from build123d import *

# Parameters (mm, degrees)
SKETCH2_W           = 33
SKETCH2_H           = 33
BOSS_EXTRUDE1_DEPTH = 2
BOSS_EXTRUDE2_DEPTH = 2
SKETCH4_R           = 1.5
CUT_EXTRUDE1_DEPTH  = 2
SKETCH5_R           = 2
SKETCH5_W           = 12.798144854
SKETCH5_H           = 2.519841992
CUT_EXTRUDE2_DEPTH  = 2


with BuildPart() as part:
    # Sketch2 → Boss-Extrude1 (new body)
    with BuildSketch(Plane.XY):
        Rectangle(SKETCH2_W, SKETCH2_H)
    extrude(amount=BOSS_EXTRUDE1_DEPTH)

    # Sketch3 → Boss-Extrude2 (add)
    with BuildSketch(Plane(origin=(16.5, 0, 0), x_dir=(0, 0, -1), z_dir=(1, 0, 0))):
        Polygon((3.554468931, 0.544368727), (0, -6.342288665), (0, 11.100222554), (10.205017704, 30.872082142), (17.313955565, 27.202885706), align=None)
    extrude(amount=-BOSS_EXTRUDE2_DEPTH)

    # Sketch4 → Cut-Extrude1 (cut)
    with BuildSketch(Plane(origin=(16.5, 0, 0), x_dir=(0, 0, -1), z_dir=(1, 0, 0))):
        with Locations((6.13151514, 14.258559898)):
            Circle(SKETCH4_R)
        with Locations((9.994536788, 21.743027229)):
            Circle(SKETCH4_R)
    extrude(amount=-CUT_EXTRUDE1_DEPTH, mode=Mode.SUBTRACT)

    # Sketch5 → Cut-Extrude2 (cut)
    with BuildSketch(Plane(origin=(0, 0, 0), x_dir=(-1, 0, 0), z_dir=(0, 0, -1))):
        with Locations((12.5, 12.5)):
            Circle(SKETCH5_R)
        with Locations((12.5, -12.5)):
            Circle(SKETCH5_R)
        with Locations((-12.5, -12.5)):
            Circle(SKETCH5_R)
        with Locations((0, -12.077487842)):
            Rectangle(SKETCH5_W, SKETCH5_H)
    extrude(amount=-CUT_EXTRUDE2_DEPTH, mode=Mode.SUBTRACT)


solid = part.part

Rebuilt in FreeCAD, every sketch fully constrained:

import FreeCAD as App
import Part
import Sketcher

V = App.Vector
Q = App.Units.Quantity

doc = App.newDocument("Part")
params = doc.addObject("Spreadsheet::Sheet", "Params")
for row, (alias, value) in enumerate([
    ("sketch1_width", "33 mm"),
    ("pad1_length", "2 mm"),
    ("sketch2_length", "30 mm"),
    ("sketch2_length2", "8 mm"),
    ("pad2_length", "2 mm"),
    ("sketch3_diameter", "3 mm"),
    ("pocket1_length", "2 mm"),
    ("sketch4_diameter", "4 mm"),
    ("pocket2_length", "2 mm"),
], start=1):
    params.set(f"A{row}", alias)
    params.set(f"B{row}", "=" + value)
    params.setAlias(f"B{row}", alias)

body = doc.addObject("PartDesign::Body", "Body")

sketch1 = doc.addObject("Sketcher::SketchObject", "Sketch")
body.addObject(sketch1)
sketch1.AttachmentSupport = (doc.XY_Plane, [""])
sketch1.MapMode = "FlatFace"
sketch1.addGeometry([
    Part.LineSegment(V(-16, 16, 0), V(-16, -16, 0)),
    Part.LineSegment(V(-16, -16, 0), V(16, -16, 0)),
    Part.LineSegment(V(16, -16, 0), V(16, 16, 0)),
    Part.LineSegment(V(16, 16, 0), V(-16, 16, 0)),
], False)
sketch1.addConstraint([
    Sketcher.Constraint("Coincident", 0, 2, 1, 1),
    Sketcher.Constraint("Coincident", 1, 2, 2, 1),
    Sketcher.Constraint("Coincident", 2, 2, 3, 1),
    Sketcher.Constraint("Coincident", 3, 2, 0, 1),
    Sketcher.Constraint("Vertical", 0),
    Sketcher.Constraint("Horizontal", 1),
    Sketcher.Constraint("Vertical", 2),
    Sketcher.Constraint("Horizontal", 3),
    Sketcher.Constraint("Symmetric", 0, 2, 2, 2, -1, 1),
    Sketcher.Constraint("Equal", 3, 0),
    Sketcher.Constraint("DistanceX", 1, 1, 1, 2, 33.0),
])
sketch1.setExpression("Constraints[10]", "Params.sketch1_width")
pad1 = doc.addObject("PartDesign::Pad", "Pad")
body.addObject(pad1)
pad1.Profile = sketch1
pad1.setExpression("Length", "Params.pad1_length")

sketch2 = doc.addObject("Sketcher::SketchObject", "Sketch001")
body.addObject(sketch2)
sketch2.AttachmentSupport = (doc.YZ_Plane, [""])
sketch2.MapMode = "FlatFace"
sketch2.AttachmentOffset = App.Placement(V(0, 0, 16.5), App.Rotation())
sketch2.addGeometry([
    Part.LineSegment(V(-6, 0, 0), V(1, -4, 0)),
    Part.LineSegment(V(1, -4, 0), V(27, -17, 0)),
    Part.LineSegment(V(27, -17, 0), V(31, -10, 0)),
    Part.LineSegment(V(31, -10, 0), V(11, 0, 0)),
    Part.LineSegment(V(11, 0, 0), V(-6, 0, 0)),
], False)
sketch2.addConstraint([
    Sketcher.Constraint("Coincident", 0, 2, 1, 1),
    Sketcher.Constraint("Coincident", 1, 2, 2, 1),
    Sketcher.Constraint("Coincident", 2, 2, 3, 1),
    Sketcher.Constraint("Coincident", 3, 2, 4, 1),
    Sketcher.Constraint("Coincident", 4, 2, 0, 1),
    Sketcher.Constraint("Horizontal", 4),
    Sketcher.Constraint("PointOnObject", 3, 2, -1),
    Sketcher.Constraint("Parallel", 0, 1),
    Sketcher.Constraint("Perpendicular", 1, 2),
    Sketcher.Constraint("Perpendicular", 2, 3),
    Sketcher.Constraint("Distance", 1, 30.0),
    Sketcher.Constraint("Distance", 2, 8.0),
    Sketcher.Constraint("Angle", 0, Q("-27.3 deg")),
    Sketcher.Constraint("Distance", 0, 7.749858),
    Sketcher.Constraint("DistanceX", -1, 1, 0, 2, 0.544369),
])
sketch2.setExpression("Constraints[10]", "Params.sketch2_length")
sketch2.setExpression("Constraints[11]", "Params.sketch2_length2")
pad2 = doc.addObject("PartDesign::Pad", "Pad001")
body.addObject(pad2)
pad2.Profile = sketch2
pad2.setExpression("Length", "Params.pad2_length")
pad2.Reversed = True

sketch3 = doc.addObject("Sketcher::SketchObject", "Sketch002")
body.addObject(sketch3)
sketch3.AttachmentSupport = (doc.YZ_Plane, [""])
sketch3.MapMode = "FlatFace"
sketch3.AttachmentOffset = App.Placement(V(0, 0, 16.5), App.Rotation())
sketch3.addGeometry([
    Part.Circle(V(14.3, -6.1, 0), V(0, 0, 1), 1.5),
    Part.Circle(V(21.7, -10, 0), V(0, 0, 1), 1.5),
], False)
sketch3.addConstraint([
    Sketcher.Constraint("Equal", 0, 1),
    Sketcher.Constraint("Diameter", 0, 3.0),
    Sketcher.Constraint("DistanceX", -1, 1, 0, 3, 14.25856),
    Sketcher.Constraint("DistanceY", 1, 3, 0, 3, 3.863022),
    Sketcher.Constraint("DistanceY", 0, 3, -1, 1, 6.131515),
    Sketcher.Constraint("DistanceX", -1, 1, 1, 3, 21.743027),
])
sketch3.setExpression("Constraints[1]", "Params.sketch3_diameter")
pocket1 = doc.addObject("PartDesign::Pocket", "Pocket")
body.addObject(pocket1)
pocket1.Profile = sketch3
pocket1.setExpression("Length", "Params.pocket1_length")

sketch4 = doc.addObject("Sketcher::SketchObject", "Sketch003")
body.addObject(sketch4)
sketch4.AttachmentSupport = (doc.XY_Plane, [""])
sketch4.MapMode = "FlatFace"
sketch4.addGeometry([
    Part.Circle(V(-12.5, 12.5, 0), V(0, 0, 1), 2),
    Part.Circle(V(-12.5, -12.5, 0), V(0, 0, 1), 2),
    Part.Circle(V(12.5, -12.5, 0), V(0, 0, 1), 2),
    Part.LineSegment(V(6.4, -10.8, 0), V(6.4, -13.3, 0)),
    Part.LineSegment(V(6.4, -13.3, 0), V(-6.4, -13.3, 0)),
    Part.LineSegment(V(-6.4, -13.3, 0), V(-6.4, -10.8, 0)),
    Part.LineSegment(V(-6.4, -10.8, 0), V(6.4, -10.8, 0)),
], False)
sketch4.addConstraint([
    Sketcher.Constraint("Coincident", 3, 2, 4, 1),
    Sketcher.Constraint("Coincident", 4, 2, 5, 1),
    Sketcher.Constraint("Coincident", 5, 2, 6, 1),
    Sketcher.Constraint("Coincident", 6, 2, 3, 1),
    Sketcher.Constraint("Vertical", 3),
    Sketcher.Constraint("Horizontal", 4),
    Sketcher.Constraint("Vertical", 5),
    Sketcher.Constraint("Horizontal", 6),
    Sketcher.Constraint("Equal", 0, 1),
    Sketcher.Constraint("Equal", 1, 2),
    Sketcher.Constraint("Symmetric", 0, 3, 2, 3, -1, 1),
    Sketcher.Constraint("Symmetric", 1, 3, 2, 3, -2),
    Sketcher.Constraint("Diameter", 0, 4.0),
    Sketcher.Constraint("DistanceY", 1, 3, 0, 3, 25.0),
    Sketcher.Constraint("DistanceX", 1, 3, 2, 3, 25.0),
    Sketcher.Constraint("DistanceY", 3, 2, 3, 1, 2.519842),
    Sketcher.Constraint("DistanceX", 4, 2, 4, 1, 12.798145),
    Sketcher.Constraint("DistanceY", 3, 2, -1, 1, 13.337409),
    Sketcher.Constraint("DistanceX", -1, 1, 3, 2, 6.399072),
])
sketch4.setExpression("Constraints[12]", "Params.sketch4_diameter")
pocket2 = doc.addObject("PartDesign::Pocket", "Pocket001")
body.addObject(pocket2)
pocket2.Profile = sketch4
pocket2.setExpression("Length", "Params.pocket2_length")
pocket2.Reversed = True

doc.recompute()
